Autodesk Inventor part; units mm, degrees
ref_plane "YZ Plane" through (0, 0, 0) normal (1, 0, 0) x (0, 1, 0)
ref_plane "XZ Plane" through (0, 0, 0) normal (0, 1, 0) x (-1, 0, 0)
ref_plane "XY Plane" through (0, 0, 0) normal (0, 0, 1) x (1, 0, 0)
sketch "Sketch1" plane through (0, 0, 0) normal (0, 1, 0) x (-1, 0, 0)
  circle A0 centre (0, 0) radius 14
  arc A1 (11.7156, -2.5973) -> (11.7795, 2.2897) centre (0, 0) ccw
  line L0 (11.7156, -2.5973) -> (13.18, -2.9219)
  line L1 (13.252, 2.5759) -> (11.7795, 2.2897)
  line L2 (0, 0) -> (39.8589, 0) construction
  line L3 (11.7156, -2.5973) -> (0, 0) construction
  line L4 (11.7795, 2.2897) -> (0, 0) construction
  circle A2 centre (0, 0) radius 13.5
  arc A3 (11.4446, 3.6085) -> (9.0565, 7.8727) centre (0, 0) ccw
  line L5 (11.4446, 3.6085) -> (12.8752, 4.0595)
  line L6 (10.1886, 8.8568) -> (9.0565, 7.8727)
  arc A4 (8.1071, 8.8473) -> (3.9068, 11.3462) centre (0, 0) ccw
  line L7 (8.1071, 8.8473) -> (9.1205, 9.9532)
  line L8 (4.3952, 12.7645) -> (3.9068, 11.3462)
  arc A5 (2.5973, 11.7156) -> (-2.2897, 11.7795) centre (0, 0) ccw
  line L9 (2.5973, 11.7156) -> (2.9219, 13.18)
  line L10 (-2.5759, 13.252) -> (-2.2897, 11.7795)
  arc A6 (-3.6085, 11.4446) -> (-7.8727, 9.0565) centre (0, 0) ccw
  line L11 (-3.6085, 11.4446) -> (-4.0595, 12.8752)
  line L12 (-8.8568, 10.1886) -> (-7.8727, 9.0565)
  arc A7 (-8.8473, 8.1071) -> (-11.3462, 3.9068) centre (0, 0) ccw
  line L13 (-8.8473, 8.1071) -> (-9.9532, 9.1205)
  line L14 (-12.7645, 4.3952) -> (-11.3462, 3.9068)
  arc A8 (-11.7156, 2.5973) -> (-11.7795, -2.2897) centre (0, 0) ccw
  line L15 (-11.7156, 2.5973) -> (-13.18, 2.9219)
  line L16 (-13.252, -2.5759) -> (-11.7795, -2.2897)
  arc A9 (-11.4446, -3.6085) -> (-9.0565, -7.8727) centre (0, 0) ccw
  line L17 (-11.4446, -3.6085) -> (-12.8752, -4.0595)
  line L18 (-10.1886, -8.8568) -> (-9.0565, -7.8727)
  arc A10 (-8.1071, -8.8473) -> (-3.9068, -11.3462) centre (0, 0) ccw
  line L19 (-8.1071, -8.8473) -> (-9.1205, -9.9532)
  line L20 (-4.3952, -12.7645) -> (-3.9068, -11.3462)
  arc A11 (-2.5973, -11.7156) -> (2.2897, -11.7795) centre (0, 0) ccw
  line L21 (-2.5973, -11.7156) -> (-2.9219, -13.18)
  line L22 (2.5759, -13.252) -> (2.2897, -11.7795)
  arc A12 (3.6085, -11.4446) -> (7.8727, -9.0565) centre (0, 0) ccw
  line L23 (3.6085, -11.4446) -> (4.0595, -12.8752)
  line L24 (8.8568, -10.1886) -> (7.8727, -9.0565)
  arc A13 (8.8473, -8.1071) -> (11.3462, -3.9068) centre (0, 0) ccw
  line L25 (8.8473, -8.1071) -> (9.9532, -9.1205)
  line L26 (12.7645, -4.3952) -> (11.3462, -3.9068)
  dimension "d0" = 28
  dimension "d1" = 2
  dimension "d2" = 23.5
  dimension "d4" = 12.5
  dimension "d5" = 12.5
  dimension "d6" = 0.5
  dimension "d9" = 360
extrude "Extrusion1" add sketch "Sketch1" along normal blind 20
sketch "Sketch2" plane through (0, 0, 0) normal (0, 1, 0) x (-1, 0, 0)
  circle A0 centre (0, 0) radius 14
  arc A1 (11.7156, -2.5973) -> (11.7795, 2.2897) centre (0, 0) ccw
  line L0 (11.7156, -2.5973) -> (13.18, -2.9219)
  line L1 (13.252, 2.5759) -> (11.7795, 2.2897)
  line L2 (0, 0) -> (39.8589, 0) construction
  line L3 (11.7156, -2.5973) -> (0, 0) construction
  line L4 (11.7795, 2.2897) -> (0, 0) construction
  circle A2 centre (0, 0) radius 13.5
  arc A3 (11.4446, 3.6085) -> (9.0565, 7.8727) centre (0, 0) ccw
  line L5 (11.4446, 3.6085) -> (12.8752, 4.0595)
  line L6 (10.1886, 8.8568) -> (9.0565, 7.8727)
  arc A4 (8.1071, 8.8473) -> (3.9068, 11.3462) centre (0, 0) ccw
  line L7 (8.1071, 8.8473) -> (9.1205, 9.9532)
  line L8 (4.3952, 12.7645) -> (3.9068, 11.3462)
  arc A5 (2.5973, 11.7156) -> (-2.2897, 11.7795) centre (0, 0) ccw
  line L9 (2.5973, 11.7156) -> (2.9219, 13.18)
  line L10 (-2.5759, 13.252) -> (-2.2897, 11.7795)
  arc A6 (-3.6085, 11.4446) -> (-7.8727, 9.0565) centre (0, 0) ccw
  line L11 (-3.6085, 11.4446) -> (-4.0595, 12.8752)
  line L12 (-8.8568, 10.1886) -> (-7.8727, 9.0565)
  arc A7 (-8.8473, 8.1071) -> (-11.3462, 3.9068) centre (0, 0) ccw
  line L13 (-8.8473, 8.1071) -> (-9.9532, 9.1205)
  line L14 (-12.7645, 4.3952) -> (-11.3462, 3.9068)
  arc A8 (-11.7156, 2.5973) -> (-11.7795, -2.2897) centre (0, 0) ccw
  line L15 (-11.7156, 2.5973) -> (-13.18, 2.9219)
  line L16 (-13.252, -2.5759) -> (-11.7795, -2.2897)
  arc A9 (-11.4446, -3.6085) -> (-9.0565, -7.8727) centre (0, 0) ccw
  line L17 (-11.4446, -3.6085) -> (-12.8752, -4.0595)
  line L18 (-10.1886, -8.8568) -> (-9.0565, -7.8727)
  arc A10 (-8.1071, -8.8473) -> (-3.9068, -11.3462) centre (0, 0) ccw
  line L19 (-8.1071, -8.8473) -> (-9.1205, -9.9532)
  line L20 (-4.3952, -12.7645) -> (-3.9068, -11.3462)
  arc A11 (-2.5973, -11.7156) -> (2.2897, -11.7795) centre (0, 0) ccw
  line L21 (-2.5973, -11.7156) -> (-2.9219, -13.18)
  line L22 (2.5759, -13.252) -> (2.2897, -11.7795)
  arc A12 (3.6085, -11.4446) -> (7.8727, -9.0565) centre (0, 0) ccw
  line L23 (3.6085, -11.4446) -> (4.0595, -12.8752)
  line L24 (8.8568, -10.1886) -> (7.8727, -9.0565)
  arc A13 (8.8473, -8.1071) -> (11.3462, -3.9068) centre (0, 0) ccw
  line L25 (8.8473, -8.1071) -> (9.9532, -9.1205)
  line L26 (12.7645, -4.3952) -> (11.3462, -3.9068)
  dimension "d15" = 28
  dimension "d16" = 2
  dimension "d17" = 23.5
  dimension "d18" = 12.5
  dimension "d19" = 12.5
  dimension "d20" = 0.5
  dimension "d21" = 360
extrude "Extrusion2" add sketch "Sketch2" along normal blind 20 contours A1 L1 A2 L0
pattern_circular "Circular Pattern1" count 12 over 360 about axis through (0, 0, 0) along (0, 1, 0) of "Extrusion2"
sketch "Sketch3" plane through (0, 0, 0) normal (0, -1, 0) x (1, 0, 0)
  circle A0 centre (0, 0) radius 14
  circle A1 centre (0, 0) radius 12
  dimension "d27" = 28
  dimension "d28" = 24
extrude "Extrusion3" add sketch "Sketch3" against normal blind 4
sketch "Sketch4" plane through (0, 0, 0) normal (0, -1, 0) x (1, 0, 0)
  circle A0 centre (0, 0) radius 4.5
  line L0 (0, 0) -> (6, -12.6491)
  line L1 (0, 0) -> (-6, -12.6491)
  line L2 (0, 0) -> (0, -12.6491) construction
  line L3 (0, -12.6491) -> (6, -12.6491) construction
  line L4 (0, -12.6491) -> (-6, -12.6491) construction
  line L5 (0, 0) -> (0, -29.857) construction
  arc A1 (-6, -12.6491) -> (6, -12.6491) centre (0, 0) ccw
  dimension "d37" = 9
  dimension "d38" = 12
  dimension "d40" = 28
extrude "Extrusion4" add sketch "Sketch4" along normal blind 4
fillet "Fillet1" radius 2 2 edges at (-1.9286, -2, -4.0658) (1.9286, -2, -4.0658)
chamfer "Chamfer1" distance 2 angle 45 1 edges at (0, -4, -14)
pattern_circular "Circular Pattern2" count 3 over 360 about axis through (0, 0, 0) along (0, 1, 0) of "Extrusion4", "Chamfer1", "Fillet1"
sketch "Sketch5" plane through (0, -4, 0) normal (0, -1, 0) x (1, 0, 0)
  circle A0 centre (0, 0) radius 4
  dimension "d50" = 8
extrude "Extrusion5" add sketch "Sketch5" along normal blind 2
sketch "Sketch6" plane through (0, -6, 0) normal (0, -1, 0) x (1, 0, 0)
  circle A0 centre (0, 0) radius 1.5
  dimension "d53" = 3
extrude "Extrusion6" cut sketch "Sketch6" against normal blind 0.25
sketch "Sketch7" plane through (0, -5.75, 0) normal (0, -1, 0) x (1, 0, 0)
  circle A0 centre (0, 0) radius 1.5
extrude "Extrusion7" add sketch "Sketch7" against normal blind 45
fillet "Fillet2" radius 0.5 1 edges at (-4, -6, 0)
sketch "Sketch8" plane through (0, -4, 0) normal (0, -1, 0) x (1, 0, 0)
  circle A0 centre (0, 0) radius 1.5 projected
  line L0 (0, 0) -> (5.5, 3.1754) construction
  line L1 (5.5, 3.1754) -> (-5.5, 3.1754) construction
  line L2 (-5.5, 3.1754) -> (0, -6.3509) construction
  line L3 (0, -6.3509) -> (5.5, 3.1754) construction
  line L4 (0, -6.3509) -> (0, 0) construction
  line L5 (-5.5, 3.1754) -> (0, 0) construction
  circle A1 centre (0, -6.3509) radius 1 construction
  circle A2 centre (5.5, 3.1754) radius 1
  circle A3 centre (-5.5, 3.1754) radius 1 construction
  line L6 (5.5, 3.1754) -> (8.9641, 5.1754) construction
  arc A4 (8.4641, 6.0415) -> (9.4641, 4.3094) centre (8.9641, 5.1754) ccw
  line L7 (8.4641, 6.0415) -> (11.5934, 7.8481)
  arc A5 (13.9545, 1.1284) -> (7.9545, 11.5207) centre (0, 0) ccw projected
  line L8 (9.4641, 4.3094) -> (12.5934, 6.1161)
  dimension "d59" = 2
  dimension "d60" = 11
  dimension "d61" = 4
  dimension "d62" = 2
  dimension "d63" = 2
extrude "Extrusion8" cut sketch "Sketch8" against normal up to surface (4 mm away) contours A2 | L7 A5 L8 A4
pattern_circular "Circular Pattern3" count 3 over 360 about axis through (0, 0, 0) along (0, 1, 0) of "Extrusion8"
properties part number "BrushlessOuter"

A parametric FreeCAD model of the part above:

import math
import FreeCAD as App
import Part
import Sketcher
Q = App.Units.Quantity


def edges_at(feature, points):
    """Names of the edges that pass closest to the given points."""
    edges = feature.Shape.Edges
    near = lambda p: min(range(len(edges)), key=lambda i: edges[i].distToShape(Part.Vertex(*p))[0])
    return sorted({f"Edge{near(p) + 1}" for p in points})

doc = App.newDocument("Part")
params = doc.addObject("Spreadsheet::Sheet", "Params")
for row, (alias, value) in enumerate([
    ("sketch1_diameter", "28 mm"),
    ("sketch1_diameter2", "27 mm"),
    ("pad1_length", "20 mm"),
    ("sketch2_radius", "13.5 mm"),
    ("sketch2_length", "1.5 mm"),
    ("pad2_length", "20 mm"),
    ("sketch3_diameter", "28 mm"),
    ("sketch3_diameter2", "24 mm"),
    ("pad3_length", "4 mm"),
    ("sketch4_radius", "14 mm"),
    ("sketch4_radius2", "4.5 mm"),
    ("pad4_length", "4 mm"),
    ("fillet_radius", "2 mm"),
    ("chamfer_size", "2 mm"),
    ("sketch5_diameter", "8 mm"),
    ("pad5_length", "2 mm"),
    ("sketch6_diameter", "3 mm"),
    ("pocket1_length", "0.25 mm"),
    ("sketch7_diameter", "3 mm"),
    ("pad6_length", "45 mm"),
    ("fillet2_radius", "0.5 mm"),
    ("sketch8_diameter", "2 mm"),
    ("sketch8_radius", "14 mm"),
    ("pocket2_length", "4 mm"),
], start=1):
    params.set(f"A{row}", alias)
    params.set(f"B{row}", "=" + value)
    params.setAlias(f"B{row}", alias)

body = doc.addObject("PartDesign::Body", "Body")

sketch1 = doc.addObject("Sketcher::SketchObject", "Sketch")
body.addObject(sketch1)
sketch1.AttachmentSupport = (doc.XZ_Plane, [""])
sketch1.MapMode = "FlatFace"
sketch1.addGeometry(Part.Circle(App.Vector(0, 0, 0), App.Vector(0, 0, 1), 14), False)
sketch1.addGeometry(Part.Circle(App.Vector(0, 0, 0), App.Vector(0, 0, 1), 13.5), False)
sketch1.addConstraint(Sketcher.Constraint("Coincident", 0, 3, -1, 1))
sketch1.addConstraint(Sketcher.Constraint("Coincident", 1, 3, -1, 1))
sketch1.addConstraint(Sketcher.Constraint("Diameter", 0, Q("28 mm")))
sketch1.addConstraint(Sketcher.Constraint("Diameter", 1, Q("27 mm")))
sketch1.setExpression("Constraints[2]", "Params.sketch1_diameter")
sketch1.setExpression("Constraints[3]", "Params.sketch1_diameter2")
pad1 = doc.addObject("PartDesign::Pad", "Pad")
body.addObject(pad1)
pad1.Profile = sketch1
pad1.setExpression("Length", "Params.pad1_length")
pad1.Reversed = True

sketch2 = doc.addObject("Sketcher::SketchObject", "Sketch001")
body.addObject(sketch2)
sketch2.AttachmentSupport = (doc.XZ_Plane, [""])
sketch2.MapMode = "FlatFace"
sketch2.addGeometry(Part.ArcOfCircle(Part.Circle(App.Vector(-0.00189, -0.00022, 0), App.Vector(0, 0, 1), 11.998159), math.radians(168.997262), math.radians(192.500995)), False)
sketch2.addGeometry(Part.LineSegment(App.Vector(-11.7156, -2.5973, 0), App.Vector(-13.18, -2.9219, 0)), False)
sketch2.addGeometry(Part.ArcOfCircle(Part.Circle(App.Vector(0, 0, 0), App.Vector(0, 0, 1), 13.5), math.radians(169.000116), math.radians(192.499852)), False)
sketch2.addGeometry(Part.LineSegment(App.Vector(-13.252, 2.5759, 0), App.Vector(-11.7795, 2.2897, 0)), False)
sketch2.addConstraint(Sketcher.Constraint("Coincident", 0, 2, 1, 1))
sketch2.addConstraint(Sketcher.Constraint("Coincident", 1, 2, 2, 2))
sketch2.addConstraint(Sketcher.Constraint("Coincident", 2, 1, 3, 1))
sketch2.addConstraint(Sketcher.Constraint("Coincident", 3, 2, 0, 1))
sketch2.addConstraint(Sketcher.Constraint("Coincident", 2, 3, -1, 1))
sketch2.addConstraint(Sketcher.Constraint("Equal", 1, 3))
sketch2.addConstraint(Sketcher.Constraint("Radius", 2, Q("13.5 mm")))
sketch2.addConstraint(Sketcher.Constraint("Angle", 3, Q("-10.999 deg")))
sketch2.addConstraint(Sketcher.Constraint("Distance", 1, Q("1.5 mm")))
sketch2.addConstraint(Sketcher.Constraint("Radius", 0, Q("11.9982 mm")))
sketch2.addConstraint(Sketcher.Constraint("DistanceX", 1, 2, -1, 1, Q("13.18 mm")))
sketch2.addConstraint(Sketcher.Constraint("DistanceX", 2, 1, 0, 3, Q("13.25 mm")))
sketch2.addConstraint(Sketcher.Constraint("DistanceY", 0, 2, 0, 3, Q("2.597 mm")))
sketch2.setExpression("Constraints[6]", "Params.sketch2_radius")
sketch2.setExpression("Constraints[8]", "Params.sketch2_length")
pad2 = doc.addObject("PartDesign::Pad", "Pad001")
body.addObject(pad2)
pad2.Profile = sketch2
pad2.setExpression("Length", "Params.pad2_length")
pad2.Reversed = True
doc.recompute()

polarpattern = doc.addObject("PartDesign::PolarPattern", "PolarPattern")
body.addObject(polarpattern)
polarpattern.Originals = [pad2]
polarpattern.Axis = (doc.Y_Axis, [""])
polarpattern.Angle = 360
polarpattern.Occurrences = 12
body.Tip = polarpattern

sketch3 = doc.addObject("Sketcher::SketchObject", "Sketch002")
body.addObject(sketch3)
sketch3.AttachmentSupport = (doc.XZ_Plane, [""])
sketch3.MapMode = "FlatFace"
sketch3.addGeometry(Part.Circle(App.Vector(0, 0, 0), App.Vector(0, 0, 1), 14), False)
sketch3.addGeometry(Part.Circle(App.Vector(0, 0, 0), App.Vector(0, 0, 1), 12), False)
sketch3.addConstraint(Sketcher.Constraint("Coincident", 0, 3, -1, 1))
sketch3.addConstraint(Sketcher.Constraint("Coincident", 1, 3, -1, 1))
sketch3.addConstraint(Sketcher.Constraint("Diameter", 0, Q("28 mm")))
sketch3.addConstraint(Sketcher.Constraint("Diameter", 1, Q("24 mm")))
sketch3.setExpression("Constraints[2]", "Params.sketch3_diameter")
sketch3.setExpression("Constraints[3]", "Params.sketch3_diameter2")
pad3 = doc.addObject("PartDesign::Pad", "Pad002")
body.addObject(pad3)
pad3.Profile = sketch3
pad3.setExpression("Length", "Params.pad3_length")
pad3.Reversed = True

sketch4 = doc.addObject("Sketcher::SketchObject", "Sketch003")
body.addObject(sketch4)
sketch4.AttachmentSupport = (doc.XZ_Plane, [""])
sketch4.MapMode = "FlatFace"
sketch4.addGeometry(Part.ArcOfCircle(Part.Circle(App.Vector(0, 0, 0), App.Vector(0, 0, 1), 4.5), math.radians(-64.623048), math.radians(244.623048)), False)
sketch4.addGeometry(Part.LineSegment(App.Vector(-1.928573, -4.065785, 0), App.Vector(-6, -12.6491, 0)), False)
sketch4.addGeometry(Part.ArcOfCircle(Part.Circle(App.Vector(0, 0, 0), App.Vector(0, 0, 1), 13.99999), math.radians(-115.376952), math.radians(-64.623048)), False)
sketch4.addGeometry(Part.LineSegment(App.Vector(6, -12.6491, 0), App.Vector(1.928573, -4.065785, 0)), False)
sketch4.addConstraint(Sketcher.Constraint("Coincident", 0, 2, 1, 1))
sketch4.addConstraint(Sketcher.Constraint("Coincident", 1, 2, 2, 1))
sketch4.addConstraint(Sketcher.Constraint("Coincident", 2, 2, 3, 1))
sketch4.addConstraint(Sketcher.Constraint("Coincident", 3, 2, 0, 1))
sketch4.addConstraint(Sketcher.Constraint("Coincident", 0, 3, -1, 1))
sketch4.addConstraint(Sketcher.Constraint("Coincident", 2, 3, -1, 1))
sketch4.addConstraint(Sketcher.Constraint("Horizontal", 1, 2, 2, 2))
sketch4.addConstraint(Sketcher.Constraint("Horizontal", 0, 2, 3, 2))
sketch4.addConstraint(Sketcher.Constraint("Radius", 2, Q("14 mm")))
sketch4.addConstraint(Sketcher.Constraint("Radius", 0, Q("4.5 mm")))
sketch4.addConstraint(Sketcher.Constraint("DistanceX", 1, 2, 2, 2, Q("12 mm")))
sketch4.addConstraint(Sketcher.Constraint("DistanceX", 0, 2, -1, 1, Q("1.9286 mm")))
sketch4.setExpression("Constraints[8]", "Params.sketch4_radius")
sketch4.setExpression("Constraints[9]", "Params.sketch4_radius2")
pad4 = doc.addObject("PartDesign::Pad", "Pad003")
body.addObject(pad4)
pad4.Profile = sketch4
pad4.setExpression("Length", "Params.pad4_length")
doc.recompute()

fillet = doc.addObject("PartDesign::Fillet", "Fillet")
body.addObject(fillet)
fillet.Base = (pad4, edges_at(pad4, [(-1.929, -2, -4.066), (1.929, -2, -4.066)]))
fillet.setExpression("Radius", "Params.fillet_radius")
doc.recompute()

chamfer = doc.addObject("PartDesign::Chamfer", "Chamfer")
body.addObject(chamfer)
chamfer.Base = (fillet, edges_at(fillet, [(0, -4, -14)]))
chamfer.setExpression("Size", "Params.chamfer_size")
doc.recompute()

polarpattern2 = doc.addObject("PartDesign::PolarPattern", "PolarPattern001")
body.addObject(polarpattern2)
polarpattern2.Originals = [pad4, chamfer, fillet]
polarpattern2.Axis = (doc.Y_Axis, [""])
polarpattern2.Angle = 360
polarpattern2.Occurrences = 3
body.Tip = polarpattern2

sketch5 = doc.addObject("Sketcher::SketchObject", "Sketch004")
body.addObject(sketch5)
sketch5.AttachmentSupport = (doc.XZ_Plane, [""])
sketch5.MapMode = "FlatFace"
sketch5.AttachmentOffset = App.Placement(App.Vector(0, 0, 4), App.Rotation())
sketch5.addGeometry(Part.Circle(App.Vector(0, 0, 0), App.Vector(0, 0, 1), 4), False)
sketch5.addConstraint(Sketcher.Constraint("Coincident", 0, 3, -1, 1))
sketch5.addConstraint(Sketcher.Constraint("Diameter", 0, Q("8 mm")))
sketch5.setExpression("Constraints[1]", "Params.sketch5_diameter")
pad5 = doc.addObject("PartDesign::Pad", "Pad004")
body.addObject(pad5)
pad5.Profile = sketch5
pad5.setExpression("Length", "Params.pad5_length")

sketch6 = doc.addObject("Sketcher::SketchObject", "Sketch005")
body.addObject(sketch6)
sketch6.AttachmentSupport = (doc.XZ_Plane, [""])
sketch6.MapMode = "FlatFace"
sketch6.AttachmentOffset = App.Placement(App.Vector(0, 0, 6), App.Rotation())
sketch6.addGeometry(Part.Circle(App.Vector(0, 0, 0), App.Vector(0, 0, 1), 1.5), False)
sketch6.addConstraint(Sketcher.Constraint("Coincident", 0, 3, -1, 1))
sketch6.addConstraint(Sketcher.Constraint("Diameter", 0, Q("3 mm")))
sketch6.setExpression("Constraints[1]", "Params.sketch6_diameter")
pocket1 = doc.addObject("PartDesign::Pocket", "Pocket")
body.addObject(pocket1)
pocket1.Profile = sketch6
pocket1.setExpression("Length", "Params.pocket1_length")

sketch7 = doc.addObject("Sketcher::SketchObject", "Sketch006")
body.addObject(sketch7)
sketch7.AttachmentSupport = (doc.XZ_Plane, [""])
sketch7.MapMode = "FlatFace"
sketch7.AttachmentOffset = App.Placement(App.Vector(0, 0, 5.75), App.Rotation())
sketch7.addGeometry(Part.Circle(App.Vector(0, 0, 0), App.Vector(0, 0, 1), 1.5), False)
sketch7.addConstraint(Sketcher.Constraint("Coincident", 0, 3, -1, 1))
sketch7.addConstraint(Sketcher.Constraint("Diameter", 0, Q("3 mm")))
sketch7.setExpression("Constraints[1]", "Params.sketch7_diameter")
pad6 = doc.addObject("PartDesign::Pad", "Pad005")
body.addObject(pad6)
pad6.Profile = sketch7
pad6.setExpression("Length", "Params.pad6_length")
pad6.Reversed = True
doc.recompute()

fillet2 = doc.addObject("PartDesign::Fillet", "Fillet001")
body.addObject(fillet2)
fillet2.Base = (pad6, edges_at(pad6, [(-4, -6, 0)]))
fillet2.setExpression("Radius", "Params.fillet2_radius")

sketch8 = doc.addObject("Sketcher::SketchObject", "Sketch007")
body.addObject(sketch8)
sketch8.AttachmentSupport = (doc.XZ_Plane, [""])
sketch8.MapMode = "FlatFace"
sketch8.AttachmentOffset = App.Placement(App.Vector(0, 0, 4), App.Rotation())
sketch8.addGeometry(Part.Circle(App.Vector(5.5, 3.1754, 0), App.Vector(0, 0, 1), 1), False)
sketch8.addGeometry(Part.LineSegment(App.Vector(11.5934, 7.8481, 0), App.Vector(8.4641, 6.0415, 0)), False)
sketch8.addGeometry(Part.ArcOfCircle(Part.Circle(App.Vector(8.9641, 5.1754, 0), App.Vector(0, 0, 1), 1.000065), math.radians(119.997863), math.radians(300.000728)), False)
sketch8.addGeometry(Part.LineSegment(App.Vector(9.4641, 4.3094, 0), App.Vector(12.5934, 6.1161, 0)), False)
sketch8.addGeometry(Part.ArcOfCircle(Part.Circle(App.Vector(0, 0, 0), App.Vector(0, 0, 1), 14.000048), math.radians(25.903952), math.radians(34.095859)), False)
sketch8.addConstraint(Sketcher.Constraint("Tangent", 1, 2, 2, 1))
sketch8.addConstraint(Sketcher.Constraint("Tangent", 2, 2, 3, 1))
sketch8.addConstraint(Sketcher.Constraint("Coincident", 3, 2, 4, 1))
sketch8.addConstraint(Sketcher.Constraint("Coincident", 4, 2, 1, 1))
sketch8.addConstraint(Sketcher.Constraint("Coincident", 4, 3, -1, 1))
sketch8.addConstraint(Sketcher.Constraint("Equal", 0, 2))
sketch8.addConstraint(Sketcher.Constraint("Parallel", 1, 3))
sketch8.addConstraint(Sketcher.Constraint("Equal", 1, 3))
sketch8.addConstraint(Sketcher.Constraint("Diameter", 0, Q("2 mm")))
sketch8.addConstraint(Sketcher.Constraint("Radius", 4, Q("14 mm")))
sketch8.addConstraint(Sketcher.Constraint("DistanceY", 0, 3, 2, 3, Q("2 mm")))
sketch8.addConstraint(Sketcher.Constraint("Angle", 3, Q("30 deg")))
sketch8.addConstraint(Sketcher.Constraint("DistanceX", -1, 1, 0, 3, Q("5.5 mm")))
sketch8.addConstraint(Sketcher.Constraint("DistanceX", -1, 1, 2, 3, Q("8.964 mm")))
sketch8.setExpression("Constraints[8]", "Params.sketch8_diameter")
sketch8.setExpression("Constraints[9]", "Params.sketch8_radius")
pocket2 = doc.addObject("PartDesign::Pocket", "Pocket001")
body.addObject(pocket2)
pocket2.Profile = sketch8
pocket2.setExpression("Length", "Params.pocket2_length")
doc.recompute()

polarpattern3 = doc.addObject("PartDesign::PolarPattern", "PolarPattern002")
body.addObject(polarpattern3)
polarpattern3.Originals = [pocket2]
polarpattern3.Axis = (doc.Y_Axis, [""])
polarpattern3.Angle = 360
polarpattern3.Occurrences = 3
body.Tip = polarpattern3

doc.recompute()
